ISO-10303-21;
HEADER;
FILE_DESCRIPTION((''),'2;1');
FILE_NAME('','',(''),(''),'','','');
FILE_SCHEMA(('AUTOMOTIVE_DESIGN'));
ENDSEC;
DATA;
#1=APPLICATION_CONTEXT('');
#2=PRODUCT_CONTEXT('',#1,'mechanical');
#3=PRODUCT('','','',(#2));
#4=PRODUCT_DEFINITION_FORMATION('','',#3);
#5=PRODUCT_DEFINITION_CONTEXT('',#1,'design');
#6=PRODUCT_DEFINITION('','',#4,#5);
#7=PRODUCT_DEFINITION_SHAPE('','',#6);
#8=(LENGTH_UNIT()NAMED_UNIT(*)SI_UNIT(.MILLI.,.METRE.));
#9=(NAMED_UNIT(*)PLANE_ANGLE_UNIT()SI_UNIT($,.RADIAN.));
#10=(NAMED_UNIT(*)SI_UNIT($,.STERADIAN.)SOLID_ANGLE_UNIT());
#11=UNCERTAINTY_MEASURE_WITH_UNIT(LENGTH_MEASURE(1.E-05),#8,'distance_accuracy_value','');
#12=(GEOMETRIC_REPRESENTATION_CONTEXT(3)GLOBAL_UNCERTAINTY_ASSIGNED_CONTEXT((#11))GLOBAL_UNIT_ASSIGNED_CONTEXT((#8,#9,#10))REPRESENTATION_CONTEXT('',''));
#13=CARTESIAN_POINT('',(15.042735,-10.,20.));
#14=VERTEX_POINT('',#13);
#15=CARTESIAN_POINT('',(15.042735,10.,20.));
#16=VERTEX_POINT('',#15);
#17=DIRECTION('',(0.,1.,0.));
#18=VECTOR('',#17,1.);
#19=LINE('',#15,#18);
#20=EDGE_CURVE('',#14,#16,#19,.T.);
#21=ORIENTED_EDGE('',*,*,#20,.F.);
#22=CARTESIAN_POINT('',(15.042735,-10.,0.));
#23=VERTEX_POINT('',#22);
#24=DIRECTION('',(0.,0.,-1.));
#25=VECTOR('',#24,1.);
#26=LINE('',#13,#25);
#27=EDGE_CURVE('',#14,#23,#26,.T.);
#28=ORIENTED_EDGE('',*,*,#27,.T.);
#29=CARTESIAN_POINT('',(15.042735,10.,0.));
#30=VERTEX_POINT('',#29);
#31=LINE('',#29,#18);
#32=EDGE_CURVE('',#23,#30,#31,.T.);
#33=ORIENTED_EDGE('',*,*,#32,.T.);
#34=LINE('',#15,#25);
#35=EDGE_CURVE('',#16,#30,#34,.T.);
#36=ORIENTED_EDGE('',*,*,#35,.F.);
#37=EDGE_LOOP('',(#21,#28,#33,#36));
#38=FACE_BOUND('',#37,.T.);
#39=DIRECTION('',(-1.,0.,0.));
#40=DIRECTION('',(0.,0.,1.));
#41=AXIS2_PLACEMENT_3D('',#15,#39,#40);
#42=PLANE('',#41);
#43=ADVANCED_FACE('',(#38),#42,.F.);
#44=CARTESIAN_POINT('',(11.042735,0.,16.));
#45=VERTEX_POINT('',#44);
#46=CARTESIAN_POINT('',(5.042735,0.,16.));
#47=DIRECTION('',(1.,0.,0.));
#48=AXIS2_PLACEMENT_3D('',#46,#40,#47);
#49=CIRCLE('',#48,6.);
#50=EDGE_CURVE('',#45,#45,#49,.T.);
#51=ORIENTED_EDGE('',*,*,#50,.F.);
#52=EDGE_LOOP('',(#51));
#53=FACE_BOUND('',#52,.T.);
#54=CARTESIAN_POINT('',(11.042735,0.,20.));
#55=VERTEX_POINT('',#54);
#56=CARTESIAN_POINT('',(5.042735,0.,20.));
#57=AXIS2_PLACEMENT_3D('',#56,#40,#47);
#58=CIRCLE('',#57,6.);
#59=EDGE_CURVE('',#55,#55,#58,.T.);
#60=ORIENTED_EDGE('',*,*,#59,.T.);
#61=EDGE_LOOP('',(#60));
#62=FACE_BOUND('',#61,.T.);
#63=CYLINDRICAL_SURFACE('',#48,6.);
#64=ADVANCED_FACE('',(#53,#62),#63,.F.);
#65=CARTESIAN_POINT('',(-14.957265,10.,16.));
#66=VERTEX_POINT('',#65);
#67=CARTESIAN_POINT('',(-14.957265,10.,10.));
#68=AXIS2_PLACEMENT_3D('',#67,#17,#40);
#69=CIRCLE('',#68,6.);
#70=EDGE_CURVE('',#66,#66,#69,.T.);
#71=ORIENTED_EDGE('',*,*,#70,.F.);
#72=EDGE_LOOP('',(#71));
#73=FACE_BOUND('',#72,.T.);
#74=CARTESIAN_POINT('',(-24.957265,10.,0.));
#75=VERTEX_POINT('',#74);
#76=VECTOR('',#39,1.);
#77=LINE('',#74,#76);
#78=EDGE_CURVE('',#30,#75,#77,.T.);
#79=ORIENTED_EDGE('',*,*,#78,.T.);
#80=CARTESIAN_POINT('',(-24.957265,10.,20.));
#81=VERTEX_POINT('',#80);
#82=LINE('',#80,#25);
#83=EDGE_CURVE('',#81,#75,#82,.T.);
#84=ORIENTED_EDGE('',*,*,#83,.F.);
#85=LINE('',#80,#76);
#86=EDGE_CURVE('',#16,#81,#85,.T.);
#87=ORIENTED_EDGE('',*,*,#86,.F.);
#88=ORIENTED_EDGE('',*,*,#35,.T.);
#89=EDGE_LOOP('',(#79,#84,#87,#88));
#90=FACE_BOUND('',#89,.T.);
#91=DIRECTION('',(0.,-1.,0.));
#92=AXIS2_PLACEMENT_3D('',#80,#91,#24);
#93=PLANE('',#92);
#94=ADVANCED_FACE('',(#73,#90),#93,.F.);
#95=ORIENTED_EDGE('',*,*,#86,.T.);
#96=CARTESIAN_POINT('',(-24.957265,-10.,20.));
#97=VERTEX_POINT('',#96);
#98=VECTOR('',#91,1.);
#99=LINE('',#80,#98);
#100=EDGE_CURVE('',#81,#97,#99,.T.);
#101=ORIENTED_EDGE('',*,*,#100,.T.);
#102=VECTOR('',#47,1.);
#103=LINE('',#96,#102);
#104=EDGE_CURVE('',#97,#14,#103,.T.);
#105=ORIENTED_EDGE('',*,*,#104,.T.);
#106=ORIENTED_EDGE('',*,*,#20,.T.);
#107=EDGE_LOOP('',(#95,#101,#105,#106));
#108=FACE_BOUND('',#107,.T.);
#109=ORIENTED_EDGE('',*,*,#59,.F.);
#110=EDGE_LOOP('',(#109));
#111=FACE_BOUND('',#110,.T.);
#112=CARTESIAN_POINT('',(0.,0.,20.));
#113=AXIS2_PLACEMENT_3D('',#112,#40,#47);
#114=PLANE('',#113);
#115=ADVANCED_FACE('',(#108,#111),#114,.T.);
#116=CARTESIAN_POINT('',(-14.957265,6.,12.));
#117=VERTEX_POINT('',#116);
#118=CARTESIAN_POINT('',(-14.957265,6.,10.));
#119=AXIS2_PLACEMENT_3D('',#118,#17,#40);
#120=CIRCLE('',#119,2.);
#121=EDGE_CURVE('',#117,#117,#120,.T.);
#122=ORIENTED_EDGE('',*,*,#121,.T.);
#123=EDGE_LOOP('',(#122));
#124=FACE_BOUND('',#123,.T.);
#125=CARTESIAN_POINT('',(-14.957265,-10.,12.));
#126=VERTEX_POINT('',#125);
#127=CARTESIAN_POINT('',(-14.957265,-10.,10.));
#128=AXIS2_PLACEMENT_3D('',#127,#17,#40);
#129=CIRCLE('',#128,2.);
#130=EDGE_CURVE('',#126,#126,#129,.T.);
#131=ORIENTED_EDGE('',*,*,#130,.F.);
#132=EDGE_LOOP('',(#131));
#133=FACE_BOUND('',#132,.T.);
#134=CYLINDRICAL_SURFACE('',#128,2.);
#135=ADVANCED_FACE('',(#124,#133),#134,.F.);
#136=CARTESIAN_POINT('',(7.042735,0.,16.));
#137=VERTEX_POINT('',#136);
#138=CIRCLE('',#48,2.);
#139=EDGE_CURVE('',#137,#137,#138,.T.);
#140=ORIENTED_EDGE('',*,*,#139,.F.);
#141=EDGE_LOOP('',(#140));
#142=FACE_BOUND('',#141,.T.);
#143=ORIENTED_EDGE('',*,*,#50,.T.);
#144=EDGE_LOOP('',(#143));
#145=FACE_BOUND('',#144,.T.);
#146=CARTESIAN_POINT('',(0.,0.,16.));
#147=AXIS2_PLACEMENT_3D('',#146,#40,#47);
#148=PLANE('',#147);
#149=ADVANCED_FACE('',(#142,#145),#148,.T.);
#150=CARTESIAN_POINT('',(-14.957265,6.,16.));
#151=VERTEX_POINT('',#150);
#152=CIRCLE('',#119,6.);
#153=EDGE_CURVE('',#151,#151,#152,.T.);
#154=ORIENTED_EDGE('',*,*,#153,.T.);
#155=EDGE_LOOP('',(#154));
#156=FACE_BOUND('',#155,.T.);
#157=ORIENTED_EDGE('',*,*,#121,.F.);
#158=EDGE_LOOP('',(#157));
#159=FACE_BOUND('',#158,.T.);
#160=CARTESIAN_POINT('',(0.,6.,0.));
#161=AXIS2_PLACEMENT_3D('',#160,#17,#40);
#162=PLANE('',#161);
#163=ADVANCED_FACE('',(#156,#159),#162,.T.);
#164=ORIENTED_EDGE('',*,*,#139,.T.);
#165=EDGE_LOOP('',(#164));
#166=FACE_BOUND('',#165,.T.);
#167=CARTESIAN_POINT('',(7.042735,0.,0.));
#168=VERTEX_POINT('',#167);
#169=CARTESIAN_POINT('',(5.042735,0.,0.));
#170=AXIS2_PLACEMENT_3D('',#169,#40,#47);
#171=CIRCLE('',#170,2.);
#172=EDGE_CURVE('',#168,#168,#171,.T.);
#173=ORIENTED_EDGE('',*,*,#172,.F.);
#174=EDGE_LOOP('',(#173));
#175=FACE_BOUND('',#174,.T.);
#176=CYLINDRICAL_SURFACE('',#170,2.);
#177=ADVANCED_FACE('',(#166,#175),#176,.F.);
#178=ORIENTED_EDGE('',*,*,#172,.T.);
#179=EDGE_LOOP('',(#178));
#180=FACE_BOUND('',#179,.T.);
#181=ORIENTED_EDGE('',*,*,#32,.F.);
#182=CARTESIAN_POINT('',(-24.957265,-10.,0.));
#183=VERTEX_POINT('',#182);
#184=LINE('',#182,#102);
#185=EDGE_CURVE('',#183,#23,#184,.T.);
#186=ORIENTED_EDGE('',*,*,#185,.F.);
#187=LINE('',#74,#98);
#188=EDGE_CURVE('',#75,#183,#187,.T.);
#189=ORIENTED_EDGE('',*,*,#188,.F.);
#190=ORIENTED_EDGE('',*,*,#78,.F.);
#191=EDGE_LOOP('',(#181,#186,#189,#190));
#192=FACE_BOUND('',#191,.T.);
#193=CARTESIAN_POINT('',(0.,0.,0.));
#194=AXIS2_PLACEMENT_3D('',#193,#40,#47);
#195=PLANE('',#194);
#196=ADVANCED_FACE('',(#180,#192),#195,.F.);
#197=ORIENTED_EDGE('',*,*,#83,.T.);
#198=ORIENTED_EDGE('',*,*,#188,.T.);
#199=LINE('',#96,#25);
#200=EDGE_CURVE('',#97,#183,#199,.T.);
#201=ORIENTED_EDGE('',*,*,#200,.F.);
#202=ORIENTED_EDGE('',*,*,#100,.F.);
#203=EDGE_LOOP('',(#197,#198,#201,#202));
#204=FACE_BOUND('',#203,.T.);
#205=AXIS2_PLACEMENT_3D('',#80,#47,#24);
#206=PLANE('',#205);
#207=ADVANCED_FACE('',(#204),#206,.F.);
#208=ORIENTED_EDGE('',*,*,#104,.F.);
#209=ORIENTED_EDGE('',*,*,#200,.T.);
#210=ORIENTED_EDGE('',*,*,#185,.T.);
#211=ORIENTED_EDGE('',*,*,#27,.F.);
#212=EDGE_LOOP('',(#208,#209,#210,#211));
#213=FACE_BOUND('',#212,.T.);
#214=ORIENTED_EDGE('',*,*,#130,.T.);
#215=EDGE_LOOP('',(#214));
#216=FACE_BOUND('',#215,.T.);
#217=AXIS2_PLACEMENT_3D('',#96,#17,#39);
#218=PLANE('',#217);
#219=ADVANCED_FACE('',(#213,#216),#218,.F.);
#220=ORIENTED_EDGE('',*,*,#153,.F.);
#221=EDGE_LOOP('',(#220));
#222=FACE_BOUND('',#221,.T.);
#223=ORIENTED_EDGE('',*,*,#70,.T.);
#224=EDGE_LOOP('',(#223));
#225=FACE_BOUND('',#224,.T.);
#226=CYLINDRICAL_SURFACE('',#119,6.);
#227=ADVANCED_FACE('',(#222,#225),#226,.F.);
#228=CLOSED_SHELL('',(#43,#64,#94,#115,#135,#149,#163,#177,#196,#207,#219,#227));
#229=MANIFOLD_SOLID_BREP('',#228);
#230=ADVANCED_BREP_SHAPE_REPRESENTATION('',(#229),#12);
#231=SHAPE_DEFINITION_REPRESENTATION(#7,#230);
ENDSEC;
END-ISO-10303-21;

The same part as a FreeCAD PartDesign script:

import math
import FreeCAD as App
import Part
import Sketcher


def add_polygon(sketch, points):
    """Adds a closed chain of lines whose ends are joined by coincident constraints."""
    first, n = sketch.GeometryCount, len(points)
    for a, b in zip(points, points[1:] + points[:1]):
        sketch.addGeometry(Part.LineSegment(App.Vector(*a, 0), App.Vector(*b, 0)), False)
    for i in range(n):
        sketch.addConstraint(Sketcher.Constraint("Coincident", first + i, 2, first + (i + 1) % n, 1))

doc = App.newDocument("Part")
params = doc.addObject("Spreadsheet::Sheet", "Params")
for row, (alias, value) in enumerate([
    ("sketch1_width", "40 mm"),
    ("sketch1_height", "20 mm"),
    ("pad1_length", "20 mm"),
    ("sketch2_diameter", "12 mm"),
    ("pocket1_length", "4 mm"),
    ("sketch3_radius", "2 mm"),
    ("pocket2_length", "20 mm"),
    ("sketch4_diameter", "12 mm"),
    ("pocket3_length", "4 mm"),
    ("sketch5_radius", "2 mm"),
    ("pocket4_length", "20 mm"),
], start=1):
    params.set(f"A{row}", alias)
    params.set(f"B{row}", "=" + value)
    params.setAlias(f"B{row}", alias)

body = doc.addObject("PartDesign::Body", "Body")

# Sketch on XY plane
sketch1 = body.newObject("Sketcher::SketchObject", "Sketch")
sketch1.AttachmentSupport = (doc.getObject("XY_Plane"), [""])
sketch1.MapMode = "FlatFace"
add_polygon(sketch1, [(-25, 10), (-25, -10), (15, -10), (15, 10)])  # lines 0-3
sketch1.addConstraint([
    Sketcher.Constraint("Vertical", 0),
    Sketcher.Constraint("Horizontal", 1),
    Sketcher.Constraint("Vertical", 2),
    Sketcher.Constraint("Horizontal", 3),
    Sketcher.Constraint("DistanceX", 1, 1, 1, 2, 40.0),
    Sketcher.Constraint("DistanceY", 0, 2, 0, 1, 20.0),
    Sketcher.Constraint("DistanceY", 0, 2, -1, 1, 10.0),
    Sketcher.Constraint("DistanceX", 0, 2, -1, 1, 24.957265),
])
sketch1.setExpression("Constraints[8]", "Params.sketch1_width")
sketch1.setExpression("Constraints[9]", "Params.sketch1_height")
pad1 = body.newObject("PartDesign::Pad", "Pad")
pad1.Profile = sketch1
pad1.setExpression("Length", "Params.pad1_length")

# Sketch on XY plane
sketch2 = body.newObject("Sketcher::SketchObject", "Sketch001")
sketch2.AttachmentSupport = (doc.getObject("XY_Plane"), [""])
sketch2.MapMode = "FlatFace"
sketch2.AttachmentOffset = App.Placement(App.Vector(0, 0, 20), App.Rotation())
sketch2.addGeometry(Part.Circle(App.Vector(5, 0, 0), App.Vector(0, 0, 1), 6), False)
sketch2.addConstraint([
    Sketcher.Constraint("PointOnObject", 0, 3, -1),
    Sketcher.Constraint("Diameter", 0, 12.0),
    Sketcher.Constraint("DistanceX", -1, 1, 0, 3, 5.042735),
])
sketch2.setExpression("Constraints[1]", "Params.sketch2_diameter")
pocket1 = body.newObject("PartDesign::Pocket", "Pocket")
pocket1.Profile = sketch2
pocket1.setExpression("Length", "Params.pocket1_length")

# Sketch on XY plane
sketch3 = body.newObject("Sketcher::SketchObject", "Sketch002")
sketch3.AttachmentSupport = (doc.getObject("XY_Plane"), [""])
sketch3.MapMode = "FlatFace"
sketch3.AttachmentOffset = App.Placement(App.Vector(0, 0, 20), App.Rotation())
sketch3.addGeometry([
    Part.ArcOfCircle(Part.Circle(App.Vector(5, 0, 0), App.Vector(0, 0, 1), 2), math.radians(0), math.radians(90)),
    Part.ArcOfCircle(Part.Circle(App.Vector(5, 0, 0), App.Vector(0, 0, 1), 2), math.radians(90), math.radians(270)),
    Part.ArcOfCircle(Part.Circle(App.Vector(5, 0, 0), App.Vector(0, 0, 1), 2), math.radians(-90), math.radians(0)),
], False)
sketch3.addConstraint([
    Sketcher.Constraint("Tangent", 0, 2, 1, 1),
    Sketcher.Constraint("Tangent", 1, 2, 2, 1),
    Sketcher.Constraint("Tangent", 2, 2, 0, 1),
    Sketcher.Constraint("Symmetric", 0, 2, 1, 2, -1),
    Sketcher.Constraint("PointOnObject", 2, 2, -1),
    Sketcher.Constraint("Vertical", 2, 3, 0, 2),
    Sketcher.Constraint("Radius", 0, 2.0),
    Sketcher.Constraint("DistanceX", -1, 1, 0, 3, 5.042735),
])
sketch3.setExpression("Constraints[6]", "Params.sketch3_radius")
pocket2 = body.newObject("PartDesign::Pocket", "Pocket001")
pocket2.Profile = sketch3
pocket2.setExpression("Length", "Params.pocket2_length")

# Sketch on XZ plane
sketch4 = body.newObject("Sketcher::SketchObject", "Sketch003")
sketch4.AttachmentSupport = (doc.getObject("XZ_Plane"), [""])
sketch4.MapMode = "FlatFace"
sketch4.AttachmentOffset = App.Placement(App.Vector(0, 0, -10), App.Rotation())
sketch4.addGeometry(Part.Circle(App.Vector(-15, 10, 0), App.Vector(0, 0, 1), 6), False)
sketch4.addConstraint([
    Sketcher.Constraint("Diameter", 0, 12.0),
    Sketcher.Constraint("DistanceY", -1, 1, 0, 3, 10.0),
    Sketcher.Constraint("DistanceX", 0, 3, -1, 1, 14.957265),
])
sketch4.setExpression("Constraints[0]", "Params.sketch4_diameter")
pocket3 = body.newObject("PartDesign::Pocket", "Pocket002")
pocket3.Profile = sketch4
pocket3.setExpression("Length", "Params.pocket3_length")
pocket3.Reversed = True

# Sketch on XZ plane
sketch5 = body.newObject("Sketcher::SketchObject", "Sketch004")
sketch5.AttachmentSupport = (doc.getObject("XZ_Plane"), [""])
sketch5.MapMode = "FlatFace"
sketch5.AttachmentOffset = App.Placement(App.Vector(0, 0, -10), App.Rotation())
sketch5.addGeometry([
    Part.ArcOfCircle(Part.Circle(App.Vector(-15, 10, 0), App.Vector(0, 0, 1), 2), math.radians(-90), math.radians(0)),
    Part.ArcOfCircle(Part.Circle(App.Vector(-15, 10, 0), App.Vector(0, 0, 1), 2), math.radians(90), math.radians(270)),
    Part.ArcOfCircle(Part.Circle(App.Vector(-15, 10, 0), App.Vector(0, 0, 1), 2), math.radians(0), math.radians(90)),
], False)
sketch5.addConstraint([
    Sketcher.Constraint("Tangent", 0, 1, 1, 2),
    Sketcher.Constraint("Tangent", 1, 1, 2, 2),
    Sketcher.Constraint("Tangent", 2, 1, 0, 2),
    Sketcher.Constraint("Horizontal", 1, 3, 2, 1),
    Sketcher.Constraint("Vertical", 2, 3, 0, 1),
    Sketcher.Constraint("Vertical", 0, 1, 1, 1),
    Sketcher.Constraint("Radius", 0, 2.0),
    Sketcher.Constraint("DistanceY", -1, 1, 0, 3, 10.0),
    Sketcher.Constraint("DistanceX", 0, 3, -1, 1, 14.957265),
])
sketch5.setExpression("Constraints[6]", "Params.sketch5_radius")
pocket4 = body.newObject("PartDesign::Pocket", "Pocket003")
pocket4.Profile = sketch5
pocket4.setExpression("Length", "Params.pocket4_length")
pocket4.Reversed = True

doc.recompute()
